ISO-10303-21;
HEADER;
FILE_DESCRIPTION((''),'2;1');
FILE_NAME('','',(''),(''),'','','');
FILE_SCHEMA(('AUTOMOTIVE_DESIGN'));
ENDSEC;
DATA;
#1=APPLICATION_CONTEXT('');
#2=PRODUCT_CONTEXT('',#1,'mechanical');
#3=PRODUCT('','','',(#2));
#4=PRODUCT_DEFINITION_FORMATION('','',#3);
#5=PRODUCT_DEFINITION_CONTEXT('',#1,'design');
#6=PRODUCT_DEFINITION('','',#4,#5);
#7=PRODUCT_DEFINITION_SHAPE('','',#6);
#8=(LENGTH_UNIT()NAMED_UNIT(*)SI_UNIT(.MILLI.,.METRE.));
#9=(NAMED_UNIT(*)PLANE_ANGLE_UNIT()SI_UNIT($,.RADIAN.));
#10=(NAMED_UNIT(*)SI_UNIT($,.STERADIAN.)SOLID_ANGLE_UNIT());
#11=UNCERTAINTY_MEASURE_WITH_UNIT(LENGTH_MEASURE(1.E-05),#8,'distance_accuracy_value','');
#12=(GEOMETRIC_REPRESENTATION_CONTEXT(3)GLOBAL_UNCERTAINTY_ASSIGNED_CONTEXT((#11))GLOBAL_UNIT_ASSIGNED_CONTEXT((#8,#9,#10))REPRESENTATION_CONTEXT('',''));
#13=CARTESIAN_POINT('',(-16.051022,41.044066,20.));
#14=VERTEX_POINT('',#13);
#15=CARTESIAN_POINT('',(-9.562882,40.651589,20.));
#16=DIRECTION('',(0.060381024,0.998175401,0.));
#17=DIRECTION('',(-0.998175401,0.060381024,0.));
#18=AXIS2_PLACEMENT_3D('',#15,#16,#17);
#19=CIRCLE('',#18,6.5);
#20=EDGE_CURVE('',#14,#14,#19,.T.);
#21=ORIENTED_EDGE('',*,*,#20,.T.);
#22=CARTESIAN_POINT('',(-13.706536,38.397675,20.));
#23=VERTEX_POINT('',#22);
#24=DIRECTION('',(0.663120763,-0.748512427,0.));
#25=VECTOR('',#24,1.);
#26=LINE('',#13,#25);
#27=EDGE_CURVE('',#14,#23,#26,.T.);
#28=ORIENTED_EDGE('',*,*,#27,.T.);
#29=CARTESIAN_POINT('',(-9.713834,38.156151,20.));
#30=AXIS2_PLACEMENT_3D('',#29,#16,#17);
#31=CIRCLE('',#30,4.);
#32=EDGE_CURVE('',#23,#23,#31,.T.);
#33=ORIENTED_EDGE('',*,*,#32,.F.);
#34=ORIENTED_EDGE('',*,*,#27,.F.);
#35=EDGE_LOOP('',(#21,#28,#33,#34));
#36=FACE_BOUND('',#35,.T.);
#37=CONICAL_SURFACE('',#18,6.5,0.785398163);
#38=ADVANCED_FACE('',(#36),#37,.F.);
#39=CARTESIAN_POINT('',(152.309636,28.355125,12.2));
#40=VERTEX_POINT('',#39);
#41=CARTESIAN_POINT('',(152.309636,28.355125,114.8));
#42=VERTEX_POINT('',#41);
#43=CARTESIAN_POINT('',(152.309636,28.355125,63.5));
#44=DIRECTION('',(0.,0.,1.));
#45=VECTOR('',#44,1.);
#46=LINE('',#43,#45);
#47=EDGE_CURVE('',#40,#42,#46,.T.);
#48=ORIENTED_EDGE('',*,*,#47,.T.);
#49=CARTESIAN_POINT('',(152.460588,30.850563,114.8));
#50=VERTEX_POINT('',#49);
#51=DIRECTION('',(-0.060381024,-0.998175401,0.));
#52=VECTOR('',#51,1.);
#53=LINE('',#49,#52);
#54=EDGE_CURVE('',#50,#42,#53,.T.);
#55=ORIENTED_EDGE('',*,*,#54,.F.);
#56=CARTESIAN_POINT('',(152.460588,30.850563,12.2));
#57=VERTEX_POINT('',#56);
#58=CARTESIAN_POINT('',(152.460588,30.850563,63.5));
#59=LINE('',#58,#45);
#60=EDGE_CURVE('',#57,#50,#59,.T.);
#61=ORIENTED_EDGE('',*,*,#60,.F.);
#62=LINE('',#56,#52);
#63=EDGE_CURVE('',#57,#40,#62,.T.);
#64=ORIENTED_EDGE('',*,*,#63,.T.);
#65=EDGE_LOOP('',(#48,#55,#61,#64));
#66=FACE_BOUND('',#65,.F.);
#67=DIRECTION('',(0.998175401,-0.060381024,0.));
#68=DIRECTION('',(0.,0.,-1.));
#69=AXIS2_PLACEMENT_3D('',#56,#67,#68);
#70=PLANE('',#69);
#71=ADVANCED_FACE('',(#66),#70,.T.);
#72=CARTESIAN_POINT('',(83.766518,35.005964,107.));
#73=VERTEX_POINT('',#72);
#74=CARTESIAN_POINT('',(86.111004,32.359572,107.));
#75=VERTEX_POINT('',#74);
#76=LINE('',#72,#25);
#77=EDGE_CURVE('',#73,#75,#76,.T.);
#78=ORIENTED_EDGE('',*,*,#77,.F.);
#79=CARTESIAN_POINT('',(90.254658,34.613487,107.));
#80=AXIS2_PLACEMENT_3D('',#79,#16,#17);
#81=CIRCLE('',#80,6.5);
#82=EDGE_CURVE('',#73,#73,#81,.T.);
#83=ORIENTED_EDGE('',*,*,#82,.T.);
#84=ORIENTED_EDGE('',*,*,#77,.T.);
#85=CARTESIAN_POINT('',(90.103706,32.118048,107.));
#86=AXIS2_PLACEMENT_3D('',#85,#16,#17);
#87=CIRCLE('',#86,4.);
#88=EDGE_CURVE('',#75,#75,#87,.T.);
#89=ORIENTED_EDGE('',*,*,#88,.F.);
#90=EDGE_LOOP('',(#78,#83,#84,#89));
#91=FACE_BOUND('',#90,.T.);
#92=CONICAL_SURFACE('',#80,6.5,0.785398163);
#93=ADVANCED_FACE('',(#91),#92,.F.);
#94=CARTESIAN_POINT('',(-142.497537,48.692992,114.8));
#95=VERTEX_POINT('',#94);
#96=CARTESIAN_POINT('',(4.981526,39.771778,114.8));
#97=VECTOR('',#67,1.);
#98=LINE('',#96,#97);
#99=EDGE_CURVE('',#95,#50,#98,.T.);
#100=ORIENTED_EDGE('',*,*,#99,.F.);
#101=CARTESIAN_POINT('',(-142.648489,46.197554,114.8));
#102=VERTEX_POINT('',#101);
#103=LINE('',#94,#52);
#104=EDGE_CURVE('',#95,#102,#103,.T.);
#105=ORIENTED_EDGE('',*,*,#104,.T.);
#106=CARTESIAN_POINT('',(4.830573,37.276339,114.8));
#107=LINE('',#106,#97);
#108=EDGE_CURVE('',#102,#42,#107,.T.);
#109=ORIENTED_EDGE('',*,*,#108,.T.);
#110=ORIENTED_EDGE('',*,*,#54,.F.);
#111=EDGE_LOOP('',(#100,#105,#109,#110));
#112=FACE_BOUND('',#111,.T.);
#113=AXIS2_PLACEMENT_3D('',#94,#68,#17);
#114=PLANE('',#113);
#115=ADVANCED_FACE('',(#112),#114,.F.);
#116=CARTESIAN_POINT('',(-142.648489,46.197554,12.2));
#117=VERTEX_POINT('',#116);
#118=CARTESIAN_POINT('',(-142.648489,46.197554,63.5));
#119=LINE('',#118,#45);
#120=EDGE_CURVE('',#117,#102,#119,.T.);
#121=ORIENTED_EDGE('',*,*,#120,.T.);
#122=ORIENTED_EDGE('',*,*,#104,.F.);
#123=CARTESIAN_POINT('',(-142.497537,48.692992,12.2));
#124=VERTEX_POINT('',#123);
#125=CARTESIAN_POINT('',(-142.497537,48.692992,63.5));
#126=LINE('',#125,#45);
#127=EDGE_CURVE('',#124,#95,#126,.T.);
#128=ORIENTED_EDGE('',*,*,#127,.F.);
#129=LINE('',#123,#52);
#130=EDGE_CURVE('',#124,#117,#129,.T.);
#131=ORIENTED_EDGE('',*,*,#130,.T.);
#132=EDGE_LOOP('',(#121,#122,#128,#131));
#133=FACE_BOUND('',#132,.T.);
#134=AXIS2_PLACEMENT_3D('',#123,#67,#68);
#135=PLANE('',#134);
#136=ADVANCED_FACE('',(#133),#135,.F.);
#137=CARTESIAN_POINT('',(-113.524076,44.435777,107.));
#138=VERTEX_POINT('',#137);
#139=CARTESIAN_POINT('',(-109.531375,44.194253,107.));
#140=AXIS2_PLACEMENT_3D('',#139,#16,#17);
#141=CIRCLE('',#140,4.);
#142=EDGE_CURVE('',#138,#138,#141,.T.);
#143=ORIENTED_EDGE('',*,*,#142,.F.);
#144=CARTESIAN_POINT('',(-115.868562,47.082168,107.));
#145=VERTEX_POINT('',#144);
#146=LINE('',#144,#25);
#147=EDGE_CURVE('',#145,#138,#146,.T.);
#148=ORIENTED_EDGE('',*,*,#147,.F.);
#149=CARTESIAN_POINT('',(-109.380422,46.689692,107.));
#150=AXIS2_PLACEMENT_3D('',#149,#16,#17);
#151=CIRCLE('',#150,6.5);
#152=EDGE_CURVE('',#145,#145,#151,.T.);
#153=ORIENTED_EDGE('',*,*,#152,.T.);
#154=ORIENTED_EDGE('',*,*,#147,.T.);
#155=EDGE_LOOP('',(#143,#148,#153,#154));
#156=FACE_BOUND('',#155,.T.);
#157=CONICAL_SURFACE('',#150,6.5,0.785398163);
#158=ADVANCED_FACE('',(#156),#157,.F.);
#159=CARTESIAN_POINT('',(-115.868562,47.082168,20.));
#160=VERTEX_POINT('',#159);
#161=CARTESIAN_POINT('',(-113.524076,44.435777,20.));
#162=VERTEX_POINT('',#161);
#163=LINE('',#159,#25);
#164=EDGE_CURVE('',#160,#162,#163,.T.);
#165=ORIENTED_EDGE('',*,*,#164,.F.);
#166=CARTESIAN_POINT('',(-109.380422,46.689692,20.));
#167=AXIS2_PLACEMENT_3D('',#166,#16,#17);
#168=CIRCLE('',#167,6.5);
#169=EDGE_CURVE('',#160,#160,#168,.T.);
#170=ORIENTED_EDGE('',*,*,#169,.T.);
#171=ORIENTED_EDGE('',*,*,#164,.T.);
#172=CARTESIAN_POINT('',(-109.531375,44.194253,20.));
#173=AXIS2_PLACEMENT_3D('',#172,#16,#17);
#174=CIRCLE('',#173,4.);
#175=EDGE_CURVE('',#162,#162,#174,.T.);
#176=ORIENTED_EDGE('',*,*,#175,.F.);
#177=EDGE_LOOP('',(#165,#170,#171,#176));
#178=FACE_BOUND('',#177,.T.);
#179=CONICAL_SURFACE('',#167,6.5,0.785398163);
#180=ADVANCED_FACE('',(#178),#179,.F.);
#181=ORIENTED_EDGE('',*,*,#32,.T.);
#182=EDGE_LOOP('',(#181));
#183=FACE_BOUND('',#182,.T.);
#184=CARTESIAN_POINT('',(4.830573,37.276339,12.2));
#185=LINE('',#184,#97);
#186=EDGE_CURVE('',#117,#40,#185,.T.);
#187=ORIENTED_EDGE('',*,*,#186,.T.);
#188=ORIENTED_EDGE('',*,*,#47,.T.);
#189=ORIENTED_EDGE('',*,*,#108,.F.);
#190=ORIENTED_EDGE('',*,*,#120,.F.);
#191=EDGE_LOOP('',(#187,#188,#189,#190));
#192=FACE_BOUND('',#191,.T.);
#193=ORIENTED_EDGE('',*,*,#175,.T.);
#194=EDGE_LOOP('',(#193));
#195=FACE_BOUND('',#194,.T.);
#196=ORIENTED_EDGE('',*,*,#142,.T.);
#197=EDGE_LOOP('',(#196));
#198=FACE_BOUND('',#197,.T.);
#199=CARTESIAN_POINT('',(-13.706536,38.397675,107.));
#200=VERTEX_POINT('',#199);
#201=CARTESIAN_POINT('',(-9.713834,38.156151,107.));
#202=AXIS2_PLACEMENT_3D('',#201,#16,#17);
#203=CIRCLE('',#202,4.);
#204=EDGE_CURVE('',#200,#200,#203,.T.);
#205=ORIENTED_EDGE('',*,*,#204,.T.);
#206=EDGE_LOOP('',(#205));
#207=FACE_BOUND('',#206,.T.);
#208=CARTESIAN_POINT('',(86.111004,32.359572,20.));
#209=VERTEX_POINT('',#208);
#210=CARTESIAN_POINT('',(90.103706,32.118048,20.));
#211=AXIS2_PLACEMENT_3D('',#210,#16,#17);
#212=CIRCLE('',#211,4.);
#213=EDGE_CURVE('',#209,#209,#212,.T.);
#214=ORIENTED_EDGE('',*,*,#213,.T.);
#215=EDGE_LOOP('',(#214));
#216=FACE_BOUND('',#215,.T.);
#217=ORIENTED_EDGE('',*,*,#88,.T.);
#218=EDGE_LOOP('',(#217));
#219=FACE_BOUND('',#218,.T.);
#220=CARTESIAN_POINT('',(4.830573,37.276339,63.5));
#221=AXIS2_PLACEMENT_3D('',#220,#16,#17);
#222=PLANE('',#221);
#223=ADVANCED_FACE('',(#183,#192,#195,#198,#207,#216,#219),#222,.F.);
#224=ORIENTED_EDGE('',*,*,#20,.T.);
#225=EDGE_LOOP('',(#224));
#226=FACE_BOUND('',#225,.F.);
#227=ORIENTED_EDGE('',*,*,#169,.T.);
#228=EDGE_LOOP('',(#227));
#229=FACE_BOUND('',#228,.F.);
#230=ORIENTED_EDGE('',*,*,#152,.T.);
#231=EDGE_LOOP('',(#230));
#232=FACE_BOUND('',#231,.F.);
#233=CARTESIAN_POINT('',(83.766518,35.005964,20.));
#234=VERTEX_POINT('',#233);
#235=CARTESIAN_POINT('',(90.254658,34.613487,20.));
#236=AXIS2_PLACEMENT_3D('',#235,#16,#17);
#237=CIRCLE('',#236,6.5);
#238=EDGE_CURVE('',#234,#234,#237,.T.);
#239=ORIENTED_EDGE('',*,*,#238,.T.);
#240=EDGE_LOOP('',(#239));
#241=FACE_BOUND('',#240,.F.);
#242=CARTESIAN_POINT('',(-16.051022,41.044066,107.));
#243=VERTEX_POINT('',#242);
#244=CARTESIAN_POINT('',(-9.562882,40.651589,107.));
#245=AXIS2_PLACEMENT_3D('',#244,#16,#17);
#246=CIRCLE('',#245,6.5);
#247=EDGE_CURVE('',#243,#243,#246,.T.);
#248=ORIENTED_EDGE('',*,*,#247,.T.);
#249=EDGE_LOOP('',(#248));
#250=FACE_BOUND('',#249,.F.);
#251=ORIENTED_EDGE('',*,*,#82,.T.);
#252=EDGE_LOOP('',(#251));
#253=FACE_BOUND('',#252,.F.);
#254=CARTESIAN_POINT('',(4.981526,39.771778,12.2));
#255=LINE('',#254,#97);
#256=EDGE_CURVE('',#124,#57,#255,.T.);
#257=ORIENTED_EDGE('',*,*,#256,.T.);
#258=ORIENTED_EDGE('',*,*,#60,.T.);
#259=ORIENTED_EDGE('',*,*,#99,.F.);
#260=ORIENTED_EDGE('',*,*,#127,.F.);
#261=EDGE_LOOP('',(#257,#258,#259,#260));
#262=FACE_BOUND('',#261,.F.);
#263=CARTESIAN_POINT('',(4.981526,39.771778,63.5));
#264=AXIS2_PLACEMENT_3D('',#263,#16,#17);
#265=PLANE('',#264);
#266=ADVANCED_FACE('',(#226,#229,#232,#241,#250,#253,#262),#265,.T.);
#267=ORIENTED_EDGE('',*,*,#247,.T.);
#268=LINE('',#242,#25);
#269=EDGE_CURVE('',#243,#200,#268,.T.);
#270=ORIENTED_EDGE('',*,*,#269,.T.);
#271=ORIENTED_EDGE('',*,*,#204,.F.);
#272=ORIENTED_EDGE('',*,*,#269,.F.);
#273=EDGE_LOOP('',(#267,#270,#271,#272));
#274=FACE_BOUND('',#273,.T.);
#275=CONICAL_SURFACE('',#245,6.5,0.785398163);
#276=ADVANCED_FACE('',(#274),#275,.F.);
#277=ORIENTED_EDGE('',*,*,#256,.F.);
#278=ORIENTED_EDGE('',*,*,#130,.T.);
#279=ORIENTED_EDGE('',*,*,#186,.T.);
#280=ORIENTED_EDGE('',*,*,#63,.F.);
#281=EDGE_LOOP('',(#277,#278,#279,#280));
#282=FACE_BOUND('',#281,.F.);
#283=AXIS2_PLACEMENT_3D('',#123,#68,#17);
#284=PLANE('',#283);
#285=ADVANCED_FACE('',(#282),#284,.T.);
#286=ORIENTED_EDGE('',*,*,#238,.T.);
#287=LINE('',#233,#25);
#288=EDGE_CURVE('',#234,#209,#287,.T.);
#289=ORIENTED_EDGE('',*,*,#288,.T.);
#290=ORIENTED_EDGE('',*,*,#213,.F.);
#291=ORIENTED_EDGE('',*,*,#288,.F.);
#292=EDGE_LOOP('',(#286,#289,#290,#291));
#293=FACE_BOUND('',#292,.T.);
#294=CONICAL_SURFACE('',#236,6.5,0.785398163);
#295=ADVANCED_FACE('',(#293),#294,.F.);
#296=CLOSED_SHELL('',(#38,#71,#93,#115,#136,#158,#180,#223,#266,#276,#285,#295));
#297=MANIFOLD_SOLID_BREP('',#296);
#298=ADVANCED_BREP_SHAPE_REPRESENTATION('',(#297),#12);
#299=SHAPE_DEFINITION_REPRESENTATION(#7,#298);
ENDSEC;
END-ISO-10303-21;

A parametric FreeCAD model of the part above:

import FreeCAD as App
import Part
import Sketcher

V = App.Vector


def add_polygon(sketch, points):
    """Adds a closed chain of lines whose ends are joined by coincident constraints."""
    first, n = sketch.GeometryCount, len(points)
    for a, b in zip(points, points[1:] + points[:1]):
        sketch.addGeometry(Part.LineSegment(App.Vector(*a, 0), App.Vector(*b, 0)), False)
    for i in range(n):
        sketch.addConstraint(Sketcher.Constraint("Coincident", first + i, 2, first + (i + 1) % n, 1))

doc = App.newDocument("Part")
params = doc.addObject("Spreadsheet::Sheet", "Params")
for row, (alias, value) in enumerate([
    ("sketch1_diameter", "7 mm"),
    ("sketch1_height", "102.6 mm"),
    ("pad1_length", "2.5 mm"),
    ("sketch2_diameter", "4.5 mm"),
    ("hole_diameter", "4.5 mm"),
    ("hole_depth", "25 mm"),
    ("hole_csink_diameter", "13 mm"),
], start=1):
    params.set(f"A{row}", alias)
    params.set(f"B{row}", "=" + value)
    params.setAlias(f"B{row}", alias)

body = doc.addObject("PartDesign::Body", "Body")

# Sketch on an angled plane
sketch1 = body.newObject("Sketcher::SketchObject", "Sketch")
sketch1.Placement = App.Placement(V(2.415223, -39.927017, 0), App.Rotation(V(0.998175401, 0.060381024, 0), V(0, 0, 0.999999999), V(0.060381024, -0.998175401, 0), "ZXY"))
add_polygon(sketch1, [(-145.2, 114.8), (-145.2, 12.2), (150.3, 12.2), (150.3, 114.8)])  # lines 0-3
sketch1.addGeometry(Part.Circle(V(-112, 20, 0), V(0, 0, 1), 3.5), False)  # 4
sketch1.addGeometry(Part.Circle(V(-12, 20, 0), V(0, 0, 1), 3.5), False)  # 5
sketch1.addGeometry(Part.Circle(V(88, 20, 0), V(0, 0, 1), 3.5), False)  # 6
sketch1.addGeometry(Part.Circle(V(-112, 107, 0), V(0, 0, 1), 3.5), False)  # 7
sketch1.addGeometry(Part.Circle(V(-12, 107, 0), V(0, 0, 1), 3.5), False)  # 8
sketch1.addGeometry(Part.Circle(V(88, 107, 0), V(0, 0, 1), 3.5), False)  # 9
sketch1.addConstraint([
    Sketcher.Constraint("Vertical", 0),
    Sketcher.Constraint("Horizontal", 1),
    Sketcher.Constraint("Vertical", 2),
    Sketcher.Constraint("Horizontal", 3),
    Sketcher.Constraint("Equal", 4, 5),
    Sketcher.Constraint("Equal", 5, 6),
    Sketcher.Constraint("Equal", 6, 7),
    Sketcher.Constraint("Equal", 7, 8),
    Sketcher.Constraint("Equal", 8, 9),
    Sketcher.Constraint("Horizontal", 4, 3, 5, 3),
    Sketcher.Constraint("Horizontal", 5, 3, 6, 3),
    Sketcher.Constraint("Horizontal", 7, 3, 8, 3),
    Sketcher.Constraint("Horizontal", 8, 3, 9, 3),
    Sketcher.Constraint("Vertical", 4, 3, 7, 3),
    Sketcher.Constraint("Vertical", 5, 3, 8, 3),
    Sketcher.Constraint("Vertical", 6, 3, 9, 3),
    Sketcher.Constraint("Diameter", 4, 7.0),
    Sketcher.Constraint("DistanceY", 0, 2, 0, 1, 102.6),
    Sketcher.Constraint("DistanceX", 4, 3, -1, 1, 112.0),
    Sketcher.Constraint("DistanceY", -1, 1, 4, 3, 20.0),
    Sketcher.Constraint("DistanceX", 5, 3, -1, 1, 12.0),
    Sketcher.Constraint("DistanceX", -1, 1, 6, 3, 88.0),
    Sketcher.Constraint("DistanceY", -1, 1, 7, 3, 107.0),
    Sketcher.Constraint("DistanceY", -1, 1, 0, 2, 12.2),
    Sketcher.Constraint("DistanceX", 1, 1, 1, 2, 295.497289),
    Sketcher.Constraint("DistanceX", 0, 2, -1, 1, 145.17765),
])
sketch1.setExpression("Constraints[20]", "Params.sketch1_diameter")
sketch1.setExpression("Constraints[21]", "Params.sketch1_height")
pad1 = body.newObject("PartDesign::Pad", "Pad")
pad1.Profile = sketch1
pad1.setExpression("Length", "Params.pad1_length")
pad1.Reversed = True

# Sketch on an angled plane
sketch2 = body.newObject("Sketcher::SketchObject", "Sketch001")
sketch2.Placement = App.Placement(V(2.415241, -39.927016, 0), App.Rotation(V(0.998175401, 0.060381024, 0), V(0, 0, 0.999999999), V(0.060381024, -0.998175401, 0), "ZXY"))
sketch2.addGeometry([
    Part.Circle(V(-112, 107, 0), V(0, 0, 1), 2.2),  # 0
    Part.Circle(V(-12, 107, 0), V(0, 0, 1), 2.2),  # 1
    Part.Circle(V(88, 107, 0), V(0, 0, 1), 2.2),  # 2
    Part.Circle(V(-112, 20, 0), V(0, 0, 1), 2.2),  # 3
    Part.Circle(V(-12, 20, 0), V(0, 0, 1), 2.2),  # 4
    Part.Circle(V(88, 20, 0), V(0, 0, 1), 2.2),  # 5
], False)
sketch2.addConstraint([
    Sketcher.Constraint("Equal", 0, 1),
    Sketcher.Constraint("Equal", 1, 2),
    Sketcher.Constraint("Equal", 2, 3),
    Sketcher.Constraint("Equal", 3, 4),
    Sketcher.Constraint("Equal", 4, 5),
    Sketcher.Constraint("Horizontal", 0, 3, 1, 3),
    Sketcher.Constraint("Horizontal", 1, 3, 2, 3),
    Sketcher.Constraint("Horizontal", 3, 3, 4, 3),
    Sketcher.Constraint("Horizontal", 4, 3, 5, 3),
    Sketcher.Constraint("Vertical", 0, 3, 3, 3),
    Sketcher.Constraint("Vertical", 1, 3, 4, 3),
    Sketcher.Constraint("Vertical", 2, 3, 5, 3),
    Sketcher.Constraint("Diameter", 0, 4.5),
    Sketcher.Constraint("DistanceY", -1, 1, 0, 3, 107.0),
    Sketcher.Constraint("DistanceY", -1, 1, 3, 3, 20.0),
    Sketcher.Constraint("DistanceX", 0, 3, 1, 3, 100.0),
    Sketcher.Constraint("DistanceX", 1, 3, 2, 3, 100.0),
    Sketcher.Constraint("DistanceX", -1, 1, 2, 3, 87.999982),
])
sketch2.setExpression("Constraints[12]", "Params.sketch2_diameter")
doc.recompute()
hole = body.newObject("PartDesign::Hole", "Hole")
hole.Profile = sketch2
hole.ThreadType = "None"
hole.setExpression("Diameter", "Params.hole_diameter")
hole.DepthType = "Dimension"
hole.setExpression("Depth", "Params.hole_depth")
hole.DrillPoint = "Flat"
hole.HoleCutType = "Countersink"
hole.setExpression("HoleCutDiameter", "Params.hole_csink_diameter")
hole.HoleCutCountersinkAngle = 90
body2 = doc.addObject("PartDesign::Body", "Body001")
doc.recompute()

mirroring = doc.addObject("Part::Mirroring", "Mirroring")
mirroring.Source = body
mirroring.Base = V(0, 0, 0)
mirroring.Normal = V(0, -1, 0)
body2.BaseFeature = mirroring
doc.recompute()
body.Visibility = False
mirroring.Visibility = False

doc.recompute()
